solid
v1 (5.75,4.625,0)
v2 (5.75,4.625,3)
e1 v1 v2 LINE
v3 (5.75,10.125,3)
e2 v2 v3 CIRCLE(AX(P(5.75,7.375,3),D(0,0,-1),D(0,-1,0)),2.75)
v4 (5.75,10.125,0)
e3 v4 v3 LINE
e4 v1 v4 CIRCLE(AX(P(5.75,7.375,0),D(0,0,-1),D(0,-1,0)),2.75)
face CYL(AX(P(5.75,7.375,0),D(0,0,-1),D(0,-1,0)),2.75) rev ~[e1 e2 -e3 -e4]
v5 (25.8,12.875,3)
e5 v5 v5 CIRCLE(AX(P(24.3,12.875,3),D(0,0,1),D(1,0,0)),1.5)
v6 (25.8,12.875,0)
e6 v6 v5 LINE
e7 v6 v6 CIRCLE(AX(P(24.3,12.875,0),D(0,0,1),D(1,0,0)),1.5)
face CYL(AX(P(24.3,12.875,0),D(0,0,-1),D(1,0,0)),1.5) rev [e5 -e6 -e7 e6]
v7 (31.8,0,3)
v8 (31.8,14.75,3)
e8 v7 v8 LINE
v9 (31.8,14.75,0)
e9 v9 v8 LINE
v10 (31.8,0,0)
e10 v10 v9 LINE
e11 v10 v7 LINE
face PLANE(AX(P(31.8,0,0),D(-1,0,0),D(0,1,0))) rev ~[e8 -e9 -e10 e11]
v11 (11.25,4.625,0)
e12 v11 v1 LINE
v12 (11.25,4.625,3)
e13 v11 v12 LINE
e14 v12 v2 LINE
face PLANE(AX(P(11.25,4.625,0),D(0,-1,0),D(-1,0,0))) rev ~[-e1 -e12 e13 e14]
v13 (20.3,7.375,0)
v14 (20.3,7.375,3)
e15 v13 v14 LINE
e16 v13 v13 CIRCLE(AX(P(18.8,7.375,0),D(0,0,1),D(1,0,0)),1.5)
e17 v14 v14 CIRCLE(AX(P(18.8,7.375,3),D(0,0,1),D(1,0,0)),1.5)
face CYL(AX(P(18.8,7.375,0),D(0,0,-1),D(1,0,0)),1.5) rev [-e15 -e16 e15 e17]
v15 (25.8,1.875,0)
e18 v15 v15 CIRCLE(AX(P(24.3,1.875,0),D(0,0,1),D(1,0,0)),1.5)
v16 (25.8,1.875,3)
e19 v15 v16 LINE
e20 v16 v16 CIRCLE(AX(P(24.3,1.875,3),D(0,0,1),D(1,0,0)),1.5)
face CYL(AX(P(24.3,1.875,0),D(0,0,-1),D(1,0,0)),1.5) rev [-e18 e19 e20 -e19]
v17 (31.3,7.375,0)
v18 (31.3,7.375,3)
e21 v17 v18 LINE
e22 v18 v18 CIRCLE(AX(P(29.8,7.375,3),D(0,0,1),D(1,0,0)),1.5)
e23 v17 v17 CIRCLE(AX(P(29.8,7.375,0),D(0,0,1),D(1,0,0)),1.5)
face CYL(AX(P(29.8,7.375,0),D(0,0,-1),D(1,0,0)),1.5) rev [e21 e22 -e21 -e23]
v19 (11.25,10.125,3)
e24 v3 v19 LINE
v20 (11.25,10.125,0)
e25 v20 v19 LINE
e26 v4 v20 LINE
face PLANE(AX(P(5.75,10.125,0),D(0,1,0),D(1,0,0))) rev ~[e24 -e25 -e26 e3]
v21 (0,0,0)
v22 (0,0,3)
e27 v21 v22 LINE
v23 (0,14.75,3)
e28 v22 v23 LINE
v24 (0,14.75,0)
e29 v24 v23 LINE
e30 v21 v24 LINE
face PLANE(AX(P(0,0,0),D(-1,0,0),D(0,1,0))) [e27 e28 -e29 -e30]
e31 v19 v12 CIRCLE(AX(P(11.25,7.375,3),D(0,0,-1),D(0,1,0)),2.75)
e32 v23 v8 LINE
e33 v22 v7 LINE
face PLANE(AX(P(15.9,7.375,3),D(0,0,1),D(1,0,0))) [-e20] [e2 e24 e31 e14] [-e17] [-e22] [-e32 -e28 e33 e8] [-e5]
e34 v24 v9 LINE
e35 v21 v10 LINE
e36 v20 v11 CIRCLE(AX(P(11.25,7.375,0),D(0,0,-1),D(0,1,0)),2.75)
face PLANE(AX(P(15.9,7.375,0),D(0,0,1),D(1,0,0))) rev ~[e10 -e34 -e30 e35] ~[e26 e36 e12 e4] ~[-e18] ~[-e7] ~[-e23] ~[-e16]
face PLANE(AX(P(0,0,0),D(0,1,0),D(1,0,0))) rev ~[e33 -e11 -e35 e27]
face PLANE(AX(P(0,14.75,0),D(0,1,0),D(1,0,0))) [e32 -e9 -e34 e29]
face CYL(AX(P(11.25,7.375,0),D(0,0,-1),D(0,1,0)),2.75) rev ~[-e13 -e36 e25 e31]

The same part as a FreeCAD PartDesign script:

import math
import FreeCAD as App
import Part
import Sketcher
Q = App.Units.Quantity

doc = App.newDocument("Part")
body = doc.addObject("PartDesign::Body", "Body")

sketch1 = body.newObject("Sketcher::SketchObject", "Sketch")
sketch1.AttachmentSupport = (doc.getObject("XY_Plane"), [""])
sketch1.MapMode = "FlatFace"
sketch1.addGeometry(Part.LineSegment(App.Vector(0, 14.75, 0), App.Vector(0, 0, 0)), False)
sketch1.addGeometry(Part.LineSegment(App.Vector(0, 0, 0), App.Vector(31.8, 0, 0)), False)
sketch1.addGeometry(Part.LineSegment(App.Vector(31.8, 0, 0), App.Vector(31.8, 14.75, 0)), False)
sketch1.addGeometry(Part.LineSegment(App.Vector(31.8, 14.75, 0), App.Vector(0, 14.75, 0)), False)
sketch1.addGeometry(Part.Circle(App.Vector(24.3, 1.875, 0), App.Vector(0, 0, 1), 1.5), False)
sketch1.addGeometry(Part.ArcOfCircle(Part.Circle(App.Vector(5.75, 7.375, 0), App.Vector(0, 0, 1), 2.75), math.radians(90), math.radians(270)), False)
sketch1.addGeometry(Part.LineSegment(App.Vector(5.75, 10.125, 0), App.Vector(11.25, 10.125, 0)), False)
sketch1.addGeometry(Part.ArcOfCircle(Part.Circle(App.Vector(11.25, 7.375, 0), App.Vector(0, 0, 1), 2.75), math.radians(-90), math.radians(90)), False)
sketch1.addGeometry(Part.LineSegment(App.Vector(11.25, 4.625, 0), App.Vector(5.75, 4.625, 0)), False)
sketch1.addGeometry(Part.Circle(App.Vector(18.8, 7.375, 0), App.Vector(0, 0, 1), 1.5), False)
sketch1.addGeometry(Part.Circle(App.Vector(29.8, 7.375, 0), App.Vector(0, 0, 1), 1.5), False)
sketch1.addGeometry(Part.Circle(App.Vector(24.3, 12.875, 0), App.Vector(0, 0, 1), 1.5), False)
sketch1.addConstraint(Sketcher.Constraint("Coincident", 0, 2, 1, 1))
sketch1.addConstraint(Sketcher.Constraint("Coincident", 1, 2, 2, 1))
sketch1.addConstraint(Sketcher.Constraint("Coincident", 2, 2, 3, 1))
sketch1.addConstraint(Sketcher.Constraint("Coincident", 3, 2, 0, 1))
sketch1.addConstraint(Sketcher.Constraint("Tangent", 5, 1, 6, 1))
sketch1.addConstraint(Sketcher.Constraint("Tangent", 6, 2, 7, 2))
sketch1.addConstraint(Sketcher.Constraint("Tangent", 7, 1, 8, 1))
sketch1.addConstraint(Sketcher.Constraint("Tangent", 8, 2, 5, 2))
sketch1.addConstraint(Sketcher.Constraint("Vertical", 0))
sketch1.addConstraint(Sketcher.Constraint("Horizontal", 1))
sketch1.addConstraint(Sketcher.Constraint("Vertical", 2))
sketch1.addConstraint(Sketcher.Constraint("Horizontal", 3))
sketch1.addConstraint(Sketcher.Constraint("Horizontal", 6))
sketch1.addConstraint(Sketcher.Constraint("Horizontal", 8))
sketch1.addConstraint(Sketcher.Constraint("Coincident", 0, 2, -1, 1))
sketch1.addConstraint(Sketcher.Constraint("Equal", 4, 9))
sketch1.addConstraint(Sketcher.Constraint("Equal", 9, 10))
sketch1.addConstraint(Sketcher.Constraint("Equal", 10, 11))
sketch1.addConstraint(Sketcher.Constraint("Horizontal", 7, 3, 9, 3))
sketch1.addConstraint(Sketcher.Constraint("Horizontal", 9, 3, 10, 3))
sketch1.addConstraint(Sketcher.Constraint("Vertical", 4, 3, 11, 3))
sketch1.addConstraint(Sketcher.Constraint("Diameter", 4, Q("3 mm")))
sketch1.addConstraint(Sketcher.Constraint("Radius", 5, Q("2.75 mm")))
sketch1.addConstraint(Sketcher.Constraint("DistanceX", 1, 1, 1, 2, Q("31.8 mm")))
sketch1.addConstraint(Sketcher.Constraint("DistanceX", 6, 1, 6, 2, Q("5.5 mm")))
sketch1.addConstraint(Sketcher.Constraint("DistanceX", 9, 3, 10, 3, Q("11 mm")))
sketch1.addConstraint(Sketcher.Constraint("DistanceY", 4, 3, 11, 3, Q("11 mm")))
sketch1.addConstraint(Sketcher.Constraint("DistanceX", 10, 3, 1, 2, Q("2 mm")))
sketch1.addConstraint(Sketcher.Constraint("DistanceY", 0, 2, 0, 1, Q("14.75 mm")))
sketch1.addConstraint(Sketcher.Constraint("DistanceX", -1, 1, 4, 3, Q("24.3 mm")))
sketch1.addConstraint(Sketcher.Constraint("DistanceY", 4, 3, 5, 3, Q("5.5 mm")))
sketch1.addConstraint(Sketcher.Constraint("DistanceX", -1, 1, 5, 3, Q("5.75 mm")))
sketch1.addConstraint(Sketcher.Constraint("DistanceY", -1, 1, 4, 3, Q("1.875 mm")))
pad1 = body.newObject("PartDesign::Pad", "Pad")
pad1.Profile = sketch1
pad1.Length = 3

doc.recompute()
